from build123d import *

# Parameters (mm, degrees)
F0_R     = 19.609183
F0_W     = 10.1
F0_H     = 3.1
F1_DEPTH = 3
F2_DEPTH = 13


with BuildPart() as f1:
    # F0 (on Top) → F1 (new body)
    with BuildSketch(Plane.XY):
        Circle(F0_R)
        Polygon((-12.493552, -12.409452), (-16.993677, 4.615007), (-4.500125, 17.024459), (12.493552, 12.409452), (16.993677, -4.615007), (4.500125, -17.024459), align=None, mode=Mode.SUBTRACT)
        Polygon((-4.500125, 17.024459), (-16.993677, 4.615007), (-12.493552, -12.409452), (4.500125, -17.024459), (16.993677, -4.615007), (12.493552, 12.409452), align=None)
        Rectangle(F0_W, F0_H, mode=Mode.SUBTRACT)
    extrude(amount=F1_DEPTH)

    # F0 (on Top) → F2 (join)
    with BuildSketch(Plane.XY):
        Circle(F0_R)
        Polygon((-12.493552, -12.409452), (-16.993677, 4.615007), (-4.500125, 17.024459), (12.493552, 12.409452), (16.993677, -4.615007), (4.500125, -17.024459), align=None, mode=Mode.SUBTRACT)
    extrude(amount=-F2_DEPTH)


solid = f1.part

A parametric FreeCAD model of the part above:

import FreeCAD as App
import Part
import Sketcher
from FreeCAD import Vector


def add_polygon(sketch, points):
    """Adds a closed chain of lines whose ends are joined by coincident constraints."""
    first, n = sketch.GeometryCount, len(points)
    for a, b in zip(points, points[1:] + points[:1]):
        sketch.addGeometry(Part.LineSegment(App.Vector(*a, 0), App.Vector(*b, 0)), False)
    for i in range(n):
        sketch.addConstraint(Sketcher.Constraint("Coincident", first + i, 2, first + (i + 1) % n, 1))

doc = App.newDocument("Part")
body = doc.addObject("PartDesign::Body", "Body")

# Sketch on XY plane
sketch1 = body.newObject("Sketcher::SketchObject", "Sketch")
sketch1.AttachmentSupport = (doc.getObject("XY_Plane"), [""])
sketch1.MapMode = "FlatFace"
sketch1.addGeometry(Part.Circle(Vector(0, 0, 0), Vector(0, 0, 1), 19.6), False)  # 0
add_polygon(sketch1, [(5, -1.6), (-5, -1.6), (-5, 1.6), (5, 1.6)])  # lines 1-4
sketch1.addConstraint([
    Sketcher.Constraint("Horizontal", 1),
    Sketcher.Constraint("Vertical", 2),
    Sketcher.Constraint("Horizontal", 3),
    Sketcher.Constraint("Vertical", 4),
    Sketcher.Constraint("Coincident", 0, 3, -1, 1),
    Sketcher.Constraint("Symmetric", 1, 2, 3, 2, -1, 1),
    Sketcher.Constraint("DistanceX", 1, 2, 1, 1, 10.1),
    Sketcher.Constraint("DistanceY", 2, 1, 2, 2, 3.1),
    Sketcher.Constraint("Diameter", 0, 39.218366),
])
pad1 = body.newObject("PartDesign::Pad", "Pad")
pad1.Profile = sketch1
pad1.Length = 3

# Sketch on XY plane
sketch2 = body.newObject("Sketcher::SketchObject", "Sketch001")
sketch2.AttachmentSupport = (doc.getObject("XY_Plane"), [""])
sketch2.MapMode = "FlatFace"
sketch2.addGeometry(Part.Circle(Vector(0, 0, 0), Vector(0, 0, 1), 20), False)  # 0
add_polygon(sketch2, [(5, -17), (-12, -12), (-17, 5), (-5, 17), (12, 12), (17, -5)])  # lines 1-6
sketch2.addConstraint([
    Sketcher.Constraint("Coincident", 0, 3, -1, 1),
    Sketcher.Constraint("Symmetric", 1, 2, 4, 2, -1, 1),
    Sketcher.Constraint("Symmetric", 2, 2, 5, 2, -1, 1),
    Sketcher.Constraint("Symmetric", 3, 2, 6, 2, -1, 1),
    Sketcher.Constraint("Equal", 1, 2),
    Sketcher.Constraint("Equal", 2, 3),
    Sketcher.Constraint("Diameter", 0, 39.218366),
    Sketcher.Constraint("DistanceX", 1, 2, -1, 1, 12.493552),
    Sketcher.Constraint("DistanceY", -1, 1, 3, 2, 17.024459),
    Sketcher.Constraint("DistanceY", 1, 2, 2, 2, 17.024459),
    Sketcher.Constraint("DistanceY", 1, 2, 3, 2, 29.433911),
])
pad2 = body.newObject("PartDesign::Pad", "Pad001")
pad2.Profile = sketch2
pad2.Length = 13
pad2.Reversed = True

doc.recompute()
